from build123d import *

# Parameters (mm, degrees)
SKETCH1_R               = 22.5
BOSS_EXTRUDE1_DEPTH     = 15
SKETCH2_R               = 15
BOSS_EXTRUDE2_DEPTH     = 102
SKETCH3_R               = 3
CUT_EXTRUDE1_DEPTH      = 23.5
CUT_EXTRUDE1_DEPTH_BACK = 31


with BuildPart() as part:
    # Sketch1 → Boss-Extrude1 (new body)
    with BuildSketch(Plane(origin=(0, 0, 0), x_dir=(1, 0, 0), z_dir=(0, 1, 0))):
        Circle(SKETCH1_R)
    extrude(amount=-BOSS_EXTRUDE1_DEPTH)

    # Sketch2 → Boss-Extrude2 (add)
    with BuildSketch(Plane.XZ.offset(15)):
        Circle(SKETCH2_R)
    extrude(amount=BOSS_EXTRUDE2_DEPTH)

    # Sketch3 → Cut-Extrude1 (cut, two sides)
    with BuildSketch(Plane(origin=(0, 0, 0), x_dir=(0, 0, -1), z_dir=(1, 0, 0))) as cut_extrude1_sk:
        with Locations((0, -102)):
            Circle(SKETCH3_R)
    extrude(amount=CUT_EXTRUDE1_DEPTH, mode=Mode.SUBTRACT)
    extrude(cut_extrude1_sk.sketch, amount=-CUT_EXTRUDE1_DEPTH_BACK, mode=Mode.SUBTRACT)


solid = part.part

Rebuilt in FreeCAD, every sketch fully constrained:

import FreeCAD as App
import Part
import Sketcher
Q = App.Units.Quantity

doc = App.newDocument("Part")
body = doc.addObject("PartDesign::Body", "Body")

sketch1 = body.newObject("Sketcher::SketchObject", "Sketch")
sketch1.AttachmentSupport = (doc.getObject("XZ_Plane"), [""])
sketch1.MapMode = "FlatFace"
sketch1.addGeometry(Part.Circle(App.Vector(0, 0, 0), App.Vector(0, 0, 1), 22.5), False)
sketch1.addConstraint([
    Sketcher.Constraint("Coincident", 0, 3, -1, 1),
    Sketcher.Constraint("Diameter", 0, Q("45 mm")),
])
pad1 = body.newObject("PartDesign::Pad", "Pad")
pad1.Profile = sketch1
pad1.Length = 15

sketch2 = body.newObject("Sketcher::SketchObject", "Sketch001")
sketch2.AttachmentSupport = (doc.getObject("XZ_Plane"), [""])
sketch2.MapMode = "FlatFace"
sketch2.AttachmentOffset = App.Placement(App.Vector(0, 0, 15), App.Rotation())
sketch2.addGeometry(Part.Circle(App.Vector(0, 0, 0), App.Vector(0, 0, 1), 15), False)
sketch2.addConstraint([
    Sketcher.Constraint("Coincident", 0, 3, -1, 1),
    Sketcher.Constraint("Diameter", 0, Q("30 mm")),
])
pad2 = body.newObject("PartDesign::Pad", "Pad001")
pad2.Profile = sketch2
pad2.Length = 102

sketch3 = body.newObject("Sketcher::SketchObject", "Sketch002")
sketch3.AttachmentSupport = (doc.getObject("YZ_Plane"), [""])
sketch3.MapMode = "FlatFace"
sketch3.addGeometry(Part.Circle(App.Vector(-102, 0, 0), App.Vector(0, 0, 1), 3), False)
sketch3.addConstraint([
    Sketcher.Constraint("PointOnObject", 0, 3, -1),
    Sketcher.Constraint("Diameter", 0, Q("6 mm")),
    Sketcher.Constraint("DistanceX", 0, 3, -1, 1, Q("102 mm")),
])
pocket1 = body.newObject("PartDesign::Pocket", "Pocket")
pocket1.Profile = sketch3
pocket1.Type = "ThroughAll"
pocket1.Midplane = True

doc.recompute()
